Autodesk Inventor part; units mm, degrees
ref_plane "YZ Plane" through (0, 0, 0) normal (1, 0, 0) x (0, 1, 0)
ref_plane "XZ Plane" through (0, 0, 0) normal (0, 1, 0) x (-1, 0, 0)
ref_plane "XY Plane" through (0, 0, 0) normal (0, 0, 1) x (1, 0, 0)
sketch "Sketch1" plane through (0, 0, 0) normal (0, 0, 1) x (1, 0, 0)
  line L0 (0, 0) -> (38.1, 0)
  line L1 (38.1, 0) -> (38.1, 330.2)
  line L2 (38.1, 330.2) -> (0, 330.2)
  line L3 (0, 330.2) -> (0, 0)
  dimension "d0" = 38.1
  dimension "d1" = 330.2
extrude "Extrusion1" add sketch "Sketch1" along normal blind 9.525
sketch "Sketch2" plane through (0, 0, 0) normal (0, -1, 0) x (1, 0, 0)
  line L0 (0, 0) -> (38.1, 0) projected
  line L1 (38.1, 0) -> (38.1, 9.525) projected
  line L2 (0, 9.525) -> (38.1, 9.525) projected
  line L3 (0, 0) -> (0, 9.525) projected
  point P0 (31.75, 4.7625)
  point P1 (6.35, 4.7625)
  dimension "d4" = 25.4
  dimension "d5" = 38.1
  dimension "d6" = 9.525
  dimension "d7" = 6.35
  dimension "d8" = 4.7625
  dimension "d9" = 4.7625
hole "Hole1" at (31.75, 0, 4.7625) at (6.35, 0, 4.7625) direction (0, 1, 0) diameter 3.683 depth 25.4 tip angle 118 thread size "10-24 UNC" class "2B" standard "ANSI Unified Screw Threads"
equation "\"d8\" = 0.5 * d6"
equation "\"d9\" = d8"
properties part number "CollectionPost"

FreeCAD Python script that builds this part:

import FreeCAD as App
import Part
import Sketcher

V = App.Vector
Q = App.Units.Quantity

doc = App.newDocument("Part")
body = doc.addObject("PartDesign::Body", "Body")

# Sketch on XY plane
sketch1 = body.newObject("Sketcher::SketchObject", "Sketch")
sketch1.AttachmentSupport = (doc.getObject("XY_Plane"), [""])
sketch1.MapMode = "FlatFace"
sketch1.addGeometry([
    Part.LineSegment(V(0, 330.2, 0), V(0, 0, 0)),
    Part.LineSegment(V(0, 0, 0), V(38.1, 0, 0)),
    Part.LineSegment(V(38.1, 0, 0), V(38.1, 330.2, 0)),
    Part.LineSegment(V(38.1, 330.2, 0), V(0, 330.2, 0)),
], False)
sketch1.addConstraint([
    Sketcher.Constraint("Coincident", 0, 2, 1, 1),
    Sketcher.Constraint("Coincident", 1, 2, 2, 1),
    Sketcher.Constraint("Coincident", 2, 2, 3, 1),
    Sketcher.Constraint("Coincident", 3, 2, 0, 1),
    Sketcher.Constraint("Vertical", 0),
    Sketcher.Constraint("Horizontal", 1),
    Sketcher.Constraint("Vertical", 2),
    Sketcher.Constraint("Horizontal", 3),
    Sketcher.Constraint("Coincident", 0, 2, -1, 1),
    Sketcher.Constraint("DistanceY", 0, 2, 0, 1, Q("13 in")),
    Sketcher.Constraint("DistanceX", 1, 1, 1, 2, Q("1.5 in")),
])
pad1 = body.newObject("PartDesign::Pad", "Pad")
pad1.Profile = sketch1
pad1.Length = Q("0.375 in")

# Sketch on XZ plane
sketch2 = body.newObject("Sketcher::SketchObject", "Sketch001")
sketch2.AttachmentSupport = (doc.getObject("XZ_Plane"), [""])
sketch2.MapMode = "FlatFace"
sketch2.addGeometry([
    Part.Circle(V(31.75, 4.7625, 0), V(0, 0, 1), 1.8415),
    Part.Circle(V(6.35, 4.7625, 0), V(0, 0, 1), 1.8415),
], False)
sketch2.addConstraint([
    Sketcher.Constraint("Equal", 0, 1),
    Sketcher.Constraint("Horizontal", 0, 3, 1, 3),
    Sketcher.Constraint("Diameter", 0, Q("0.145 in")),
    Sketcher.Constraint("DistanceX", 1, 3, 0, 3, Q("1 in")),
    Sketcher.Constraint("DistanceX", -1, 1, 0, 3, Q("1.25 in")),
    Sketcher.Constraint("DistanceY", -1, 1, 0, 3, Q("0.1875 in")),
])
doc.recompute()
hole = body.newObject("PartDesign::Hole", "Hole")
hole.Profile = sketch2
hole.ThreadType = "None"
hole.Diameter = Q("0.145 in")
hole.DepthType = "Dimension"
hole.Depth = Q("1 in")
hole.DrillPoint = "Angled"
hole.DrillPointAngle = 118

doc.recompute()
